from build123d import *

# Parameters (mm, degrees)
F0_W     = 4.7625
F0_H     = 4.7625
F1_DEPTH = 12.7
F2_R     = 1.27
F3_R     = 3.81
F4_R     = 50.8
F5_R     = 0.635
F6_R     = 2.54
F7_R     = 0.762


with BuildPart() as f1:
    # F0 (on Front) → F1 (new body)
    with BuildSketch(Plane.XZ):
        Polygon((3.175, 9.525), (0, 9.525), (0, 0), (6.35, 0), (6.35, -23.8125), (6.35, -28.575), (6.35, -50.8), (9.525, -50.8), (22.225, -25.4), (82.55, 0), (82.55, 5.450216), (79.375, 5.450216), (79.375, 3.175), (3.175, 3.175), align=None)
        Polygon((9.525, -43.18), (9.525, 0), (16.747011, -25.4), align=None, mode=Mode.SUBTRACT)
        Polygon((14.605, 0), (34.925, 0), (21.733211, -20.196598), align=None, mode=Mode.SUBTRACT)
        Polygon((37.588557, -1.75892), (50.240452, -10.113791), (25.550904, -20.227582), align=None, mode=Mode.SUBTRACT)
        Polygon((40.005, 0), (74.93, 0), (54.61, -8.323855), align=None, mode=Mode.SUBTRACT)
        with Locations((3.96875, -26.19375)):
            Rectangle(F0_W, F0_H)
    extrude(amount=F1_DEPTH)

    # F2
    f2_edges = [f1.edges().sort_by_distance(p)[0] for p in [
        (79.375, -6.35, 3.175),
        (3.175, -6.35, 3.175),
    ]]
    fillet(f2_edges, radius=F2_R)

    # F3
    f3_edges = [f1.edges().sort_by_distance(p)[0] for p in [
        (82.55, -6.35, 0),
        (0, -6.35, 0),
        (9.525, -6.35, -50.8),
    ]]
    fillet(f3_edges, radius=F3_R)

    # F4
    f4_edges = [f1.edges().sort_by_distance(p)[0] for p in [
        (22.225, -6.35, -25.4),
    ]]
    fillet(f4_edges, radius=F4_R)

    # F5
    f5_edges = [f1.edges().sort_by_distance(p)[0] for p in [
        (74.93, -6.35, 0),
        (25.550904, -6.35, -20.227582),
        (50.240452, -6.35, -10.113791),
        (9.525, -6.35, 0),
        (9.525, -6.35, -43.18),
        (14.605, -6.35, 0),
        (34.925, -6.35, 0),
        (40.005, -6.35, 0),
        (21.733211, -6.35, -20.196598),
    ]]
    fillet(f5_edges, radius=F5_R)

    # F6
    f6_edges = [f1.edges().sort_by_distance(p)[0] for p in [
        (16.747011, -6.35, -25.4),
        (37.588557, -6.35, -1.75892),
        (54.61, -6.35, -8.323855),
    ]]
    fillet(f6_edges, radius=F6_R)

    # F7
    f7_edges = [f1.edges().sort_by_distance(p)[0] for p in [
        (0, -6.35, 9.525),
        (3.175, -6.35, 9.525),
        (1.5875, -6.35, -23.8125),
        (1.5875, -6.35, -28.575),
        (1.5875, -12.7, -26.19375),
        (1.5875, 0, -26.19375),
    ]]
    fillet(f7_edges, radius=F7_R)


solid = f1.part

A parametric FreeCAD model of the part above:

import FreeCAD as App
import Part
import Sketcher

V = App.Vector
Q = App.Units.Quantity


def edges_at(feature, points):
    """Names of the edges that pass closest to the given points."""
    edges = feature.Shape.Edges
    near = lambda p: min(range(len(edges)), key=lambda i: edges[i].distToShape(Part.Vertex(*p))[0])
    return sorted({f"Edge{near(p) + 1}" for p in points})

doc = App.newDocument("Part")
body = doc.addObject("PartDesign::Body", "Body")

sketch1 = body.newObject("Sketcher::SketchObject", "Sketch")
sketch1.AttachmentSupport = (doc.getObject("XZ_Plane"), [""])
sketch1.MapMode = "FlatFace"
sketch1.addGeometry([
    Part.LineSegment(V(3.2, 9.5, 0), V(0, 9.5, 0)),
    Part.LineSegment(V(0, 9.5, 0), V(0, 0, 0)),
    Part.LineSegment(V(0, 0, 0), V(6.3, 0, 0)),
    Part.LineSegment(V(6.3, 0, 0), V(6.3, -23.8, 0)),
    Part.LineSegment(V(6.3, -23.8, 0), V(1.6, -23.8, 0)),
    Part.LineSegment(V(1.6, -23.8, 0), V(1.6, -28.6, 0)),
    Part.LineSegment(V(1.6, -28.6, 0), V(6.3, -28.6, 0)),
    Part.LineSegment(V(6.3, -28.6, 0), V(6.3, -50.8, 0)),
    Part.LineSegment(V(6.3, -50.8, 0), V(9.5, -50.8, 0)),
    Part.LineSegment(V(9.5, -50.8, 0), V(22.2, -25.4, 0)),
    Part.LineSegment(V(22.2, -25.4, 0), V(82.5, 0, 0)),
    Part.LineSegment(V(82.5, 0, 0), V(82.5, 5.5, 0)),
    Part.LineSegment(V(82.5, 5.5, 0), V(79.4, 5.5, 0)),
    Part.LineSegment(V(79.4, 5.5, 0), V(79.4, 3.2, 0)),
    Part.LineSegment(V(79.4, 3.2, 0), V(3.2, 3.2, 0)),
    Part.LineSegment(V(3.2, 3.2, 0), V(3.2, 9.5, 0)),
    Part.LineSegment(V(16.7, -25.4, 0), V(9.5, -43.2, 0)),
    Part.LineSegment(V(9.5, -43.2, 0), V(9.5, 0, 0)),
    Part.LineSegment(V(9.5, 0, 0), V(16.7, -25.4, 0)),
    Part.LineSegment(V(25.6, -20.2, 0), V(37.6, -1.8, 0)),
    Part.LineSegment(V(37.6, -1.8, 0), V(50.2, -10.1, 0)),
    Part.LineSegment(V(50.2, -10.1, 0), V(25.6, -20.2, 0)),
    Part.LineSegment(V(21.7, -20.2, 0), V(14.6, 0, 0)),
    Part.LineSegment(V(14.6, 0, 0), V(34.9, 0, 0)),
    Part.LineSegment(V(34.9, 0, 0), V(21.7, -20.2, 0)),
    Part.LineSegment(V(54.6, -8.3, 0), V(40, 0, 0)),
    Part.LineSegment(V(40, 0, 0), V(74.9, 0, 0)),
    Part.LineSegment(V(74.9, 0, 0), V(54.6, -8.3, 0)),
], False)
sketch1.addConstraint([
    Sketcher.Constraint("Coincident", 0, 2, 1, 1),
    Sketcher.Constraint("Coincident", 1, 2, 2, 1),
    Sketcher.Constraint("Coincident", 2, 2, 3, 1),
    Sketcher.Constraint("Coincident", 3, 2, 4, 1),
    Sketcher.Constraint("Coincident", 4, 2, 5, 1),
    Sketcher.Constraint("Coincident", 5, 2, 6, 1),
    Sketcher.Constraint("Coincident", 6, 2, 7, 1),
    Sketcher.Constraint("Coincident", 7, 2, 8, 1),
    Sketcher.Constraint("Coincident", 8, 2, 9, 1),
    Sketcher.Constraint("Coincident", 9, 2, 10, 1),
    Sketcher.Constraint("Coincident", 10, 2, 11, 1),
    Sketcher.Constraint("Coincident", 11, 2, 12, 1),
    Sketcher.Constraint("Coincident", 12, 2, 13, 1),
    Sketcher.Constraint("Coincident", 13, 2, 14, 1),
    Sketcher.Constraint("Coincident", 14, 2, 15, 1),
    Sketcher.Constraint("Coincident", 15, 2, 0, 1),
    Sketcher.Constraint("Coincident", 16, 2, 17, 1),
    Sketcher.Constraint("Coincident", 17, 2, 18, 1),
    Sketcher.Constraint("Coincident", 18, 2, 16, 1),
    Sketcher.Constraint("Coincident", 19, 2, 20, 1),
    Sketcher.Constraint("Coincident", 20, 2, 21, 1),
    Sketcher.Constraint("Coincident", 21, 2, 19, 1),
    Sketcher.Constraint("Coincident", 22, 2, 23, 1),
    Sketcher.Constraint("Coincident", 23, 2, 24, 1),
    Sketcher.Constraint("Coincident", 24, 2, 22, 1),
    Sketcher.Constraint("Coincident", 25, 2, 26, 1),
    Sketcher.Constraint("Coincident", 26, 2, 27, 1),
    Sketcher.Constraint("Coincident", 27, 2, 25, 1),
    Sketcher.Constraint("Horizontal", 0),
    Sketcher.Constraint("Vertical", 1),
    Sketcher.Constraint("Horizontal", 2),
    Sketcher.Constraint("Vertical", 3),
    Sketcher.Constraint("Horizontal", 4),
    Sketcher.Constraint("Vertical", 5),
    Sketcher.Constraint("Horizontal", 6),
    Sketcher.Constraint("Vertical", 7),
    Sketcher.Constraint("Horizontal", 8),
    Sketcher.Constraint("Vertical", 11),
    Sketcher.Constraint("Horizontal", 12),
    Sketcher.Constraint("Vertical", 13),
    Sketcher.Constraint("Horizontal", 14),
    Sketcher.Constraint("Vertical", 15),
    Sketcher.Constraint("Vertical", 17),
    Sketcher.Constraint("Horizontal", 23),
    Sketcher.Constraint("Horizontal", 26),
    Sketcher.Constraint("Coincident", 1, 2, -1, 1),
    Sketcher.Constraint("PointOnObject", 10, 2, -1),
    Sketcher.Constraint("PointOnObject", 17, 2, -1),
    Sketcher.Constraint("PointOnObject", 22, 2, -1),
    Sketcher.Constraint("PointOnObject", 25, 2, -1),
    Sketcher.Constraint("Parallel", 21, 27),
    Sketcher.Constraint("Horizontal", 9, 2, 18, 2),
    Sketcher.Constraint("Vertical", 3, 2, 6, 2),
    Sketcher.Constraint("Vertical", 8, 2, 16, 2),
    Sketcher.Constraint("Equal", 0, 8),
    Sketcher.Constraint("Equal", 8, 12),
    Sketcher.Constraint("Equal", 6, 5),
    Sketcher.Constraint("Equal", 2, 15),
    Sketcher.Constraint("DistanceX", 14, 2, 14, 1, Q("3 in")),
    Sketcher.Constraint("DistanceX", 23, 1, 23, 2, Q("0.8 in")),
    Sketcher.Constraint("DistanceY", 17, 1, 17, 2, Q("1.7 in")),
    Sketcher.Constraint("DistanceY", 7, 2, -1, 1, Q("2 in")),
    Sketcher.Constraint("DistanceY", 9, 2, -1, 1, Q("1 in")),
    Sketcher.Constraint("DistanceX", 2, 2, 10, 2, Q("3 in")),
    Sketcher.Constraint("DistanceX", 17, 2, 23, 2, Q("1 in")),
    Sketcher.Constraint("DistanceX", 22, 2, 25, 2, Q("1 in")),
    Sketcher.Constraint("DistanceX", 2, 1, 2, 2, Q("0.25 in")),
    Sketcher.Constraint("DistanceY", 5, 2, 0, 2, Q("1.5 in")),
    Sketcher.Constraint("DistanceX", 8, 2, 9, 2, Q("0.5 in")),
    Sketcher.Constraint("DistanceX", 26, 2, 10, 2, Q("0.3 in")),
    Sketcher.Constraint("DistanceX", 27, 2, 26, 2, Q("0.8 in")),
    Sketcher.Constraint("DistanceX", 4, 2, 4, 1, Q("0.1875 in")),
    Sketcher.Constraint("DistanceY", 1, 2, 1, 1, Q("0.375 in")),
    Sketcher.Constraint("Distance", 27, Q("21.958801 mm")),
    Sketcher.Constraint("DistanceY", 24, 2, -1, 1, Q("20.196598 mm")),
    Sketcher.Constraint("DistanceX", 18, 2, 24, 2, Q("4.9862 mm")),
    Sketcher.Constraint("Distance", 18, Q("26.406769 mm")),
    Sketcher.Constraint("Distance", 19, Q("22.04533 mm")),
    Sketcher.Constraint("DistanceY", 11, 1, 11, 2, Q("5.450216 mm")),
    Sketcher.Constraint("DistanceY", 19, 2, -1, 1, Q("1.75892 mm")),
    Sketcher.Constraint("DistanceX", -1, 1, 20, 2, Q("50.240452 mm")),
    Sketcher.Constraint("DistanceY", 20, 2, -1, 1, Q("10.113791 mm")),
    Sketcher.Constraint("Distance", 20, Q("15.161607 mm")),
])
pad1 = body.newObject("PartDesign::Pad", "Pad")
pad1.Profile = sketch1
pad1.Length = Q("0.5 in")
doc.recompute()

fillet = body.newObject("PartDesign::Fillet", "Fillet")
fillet.Base = (pad1, edges_at(pad1, [(79.375, -6.35, 3.175), (3.175, -6.35, 3.175)]))
fillet.Radius = Q("0.05 in")
doc.recompute()

fillet2 = body.newObject("PartDesign::Fillet", "Fillet001")
fillet2.Base = (fillet, edges_at(fillet, [(82.55, -6.35, 0), (0, -6.35, 0), (9.525, -6.35, -50.8)]))
fillet2.Radius = Q("0.15 in")
doc.recompute()

fillet3 = body.newObject("PartDesign::Fillet", "Fillet002")
fillet3.Base = (fillet2, edges_at(fillet2, [(22.225, -6.35, -25.4)]))
fillet3.Radius = Q("2 in")
doc.recompute()

fillet4 = body.newObject("PartDesign::Fillet", "Fillet003")
fillet4.Base = (fillet3, edges_at(fillet3, [
    (74.93, -6.35, 0),
    (25.551, -6.35, -20.228),
    (50.24, -6.35, -10.114),
    (9.525, -6.35, 0),
    (9.525, -6.35, -43.18),
    (14.605, -6.35, 0),
    (34.925, -6.35, 0),
    (40.005, -6.35, 0),
    (21.733, -6.35, -20.197),
]))
fillet4.Radius = Q("0.025 in")
doc.recompute()

fillet5 = body.newObject("PartDesign::Fillet", "Fillet004")
fillet5.Base = (fillet4, edges_at(fillet4, [(16.747, -6.35, -25.4), (37.589, -6.35, -1.759), (54.61, -6.35, -8.324)]))
fillet5.Radius = Q("0.1 in")
doc.recompute()

fillet6 = body.newObject("PartDesign::Fillet", "Fillet005")
fillet6.Base = (fillet5, edges_at(fillet5, [
    (0, -6.35, 9.525),
    (3.175, -6.35, 9.525),
    (1.587, -6.35, -23.812),
    (1.587, -6.35, -28.575),
    (1.587, -12.7, -26.194),
    (1.587, 0, -26.194),
]))
fillet6.Radius = Q("0.03 in")

doc.recompute()
